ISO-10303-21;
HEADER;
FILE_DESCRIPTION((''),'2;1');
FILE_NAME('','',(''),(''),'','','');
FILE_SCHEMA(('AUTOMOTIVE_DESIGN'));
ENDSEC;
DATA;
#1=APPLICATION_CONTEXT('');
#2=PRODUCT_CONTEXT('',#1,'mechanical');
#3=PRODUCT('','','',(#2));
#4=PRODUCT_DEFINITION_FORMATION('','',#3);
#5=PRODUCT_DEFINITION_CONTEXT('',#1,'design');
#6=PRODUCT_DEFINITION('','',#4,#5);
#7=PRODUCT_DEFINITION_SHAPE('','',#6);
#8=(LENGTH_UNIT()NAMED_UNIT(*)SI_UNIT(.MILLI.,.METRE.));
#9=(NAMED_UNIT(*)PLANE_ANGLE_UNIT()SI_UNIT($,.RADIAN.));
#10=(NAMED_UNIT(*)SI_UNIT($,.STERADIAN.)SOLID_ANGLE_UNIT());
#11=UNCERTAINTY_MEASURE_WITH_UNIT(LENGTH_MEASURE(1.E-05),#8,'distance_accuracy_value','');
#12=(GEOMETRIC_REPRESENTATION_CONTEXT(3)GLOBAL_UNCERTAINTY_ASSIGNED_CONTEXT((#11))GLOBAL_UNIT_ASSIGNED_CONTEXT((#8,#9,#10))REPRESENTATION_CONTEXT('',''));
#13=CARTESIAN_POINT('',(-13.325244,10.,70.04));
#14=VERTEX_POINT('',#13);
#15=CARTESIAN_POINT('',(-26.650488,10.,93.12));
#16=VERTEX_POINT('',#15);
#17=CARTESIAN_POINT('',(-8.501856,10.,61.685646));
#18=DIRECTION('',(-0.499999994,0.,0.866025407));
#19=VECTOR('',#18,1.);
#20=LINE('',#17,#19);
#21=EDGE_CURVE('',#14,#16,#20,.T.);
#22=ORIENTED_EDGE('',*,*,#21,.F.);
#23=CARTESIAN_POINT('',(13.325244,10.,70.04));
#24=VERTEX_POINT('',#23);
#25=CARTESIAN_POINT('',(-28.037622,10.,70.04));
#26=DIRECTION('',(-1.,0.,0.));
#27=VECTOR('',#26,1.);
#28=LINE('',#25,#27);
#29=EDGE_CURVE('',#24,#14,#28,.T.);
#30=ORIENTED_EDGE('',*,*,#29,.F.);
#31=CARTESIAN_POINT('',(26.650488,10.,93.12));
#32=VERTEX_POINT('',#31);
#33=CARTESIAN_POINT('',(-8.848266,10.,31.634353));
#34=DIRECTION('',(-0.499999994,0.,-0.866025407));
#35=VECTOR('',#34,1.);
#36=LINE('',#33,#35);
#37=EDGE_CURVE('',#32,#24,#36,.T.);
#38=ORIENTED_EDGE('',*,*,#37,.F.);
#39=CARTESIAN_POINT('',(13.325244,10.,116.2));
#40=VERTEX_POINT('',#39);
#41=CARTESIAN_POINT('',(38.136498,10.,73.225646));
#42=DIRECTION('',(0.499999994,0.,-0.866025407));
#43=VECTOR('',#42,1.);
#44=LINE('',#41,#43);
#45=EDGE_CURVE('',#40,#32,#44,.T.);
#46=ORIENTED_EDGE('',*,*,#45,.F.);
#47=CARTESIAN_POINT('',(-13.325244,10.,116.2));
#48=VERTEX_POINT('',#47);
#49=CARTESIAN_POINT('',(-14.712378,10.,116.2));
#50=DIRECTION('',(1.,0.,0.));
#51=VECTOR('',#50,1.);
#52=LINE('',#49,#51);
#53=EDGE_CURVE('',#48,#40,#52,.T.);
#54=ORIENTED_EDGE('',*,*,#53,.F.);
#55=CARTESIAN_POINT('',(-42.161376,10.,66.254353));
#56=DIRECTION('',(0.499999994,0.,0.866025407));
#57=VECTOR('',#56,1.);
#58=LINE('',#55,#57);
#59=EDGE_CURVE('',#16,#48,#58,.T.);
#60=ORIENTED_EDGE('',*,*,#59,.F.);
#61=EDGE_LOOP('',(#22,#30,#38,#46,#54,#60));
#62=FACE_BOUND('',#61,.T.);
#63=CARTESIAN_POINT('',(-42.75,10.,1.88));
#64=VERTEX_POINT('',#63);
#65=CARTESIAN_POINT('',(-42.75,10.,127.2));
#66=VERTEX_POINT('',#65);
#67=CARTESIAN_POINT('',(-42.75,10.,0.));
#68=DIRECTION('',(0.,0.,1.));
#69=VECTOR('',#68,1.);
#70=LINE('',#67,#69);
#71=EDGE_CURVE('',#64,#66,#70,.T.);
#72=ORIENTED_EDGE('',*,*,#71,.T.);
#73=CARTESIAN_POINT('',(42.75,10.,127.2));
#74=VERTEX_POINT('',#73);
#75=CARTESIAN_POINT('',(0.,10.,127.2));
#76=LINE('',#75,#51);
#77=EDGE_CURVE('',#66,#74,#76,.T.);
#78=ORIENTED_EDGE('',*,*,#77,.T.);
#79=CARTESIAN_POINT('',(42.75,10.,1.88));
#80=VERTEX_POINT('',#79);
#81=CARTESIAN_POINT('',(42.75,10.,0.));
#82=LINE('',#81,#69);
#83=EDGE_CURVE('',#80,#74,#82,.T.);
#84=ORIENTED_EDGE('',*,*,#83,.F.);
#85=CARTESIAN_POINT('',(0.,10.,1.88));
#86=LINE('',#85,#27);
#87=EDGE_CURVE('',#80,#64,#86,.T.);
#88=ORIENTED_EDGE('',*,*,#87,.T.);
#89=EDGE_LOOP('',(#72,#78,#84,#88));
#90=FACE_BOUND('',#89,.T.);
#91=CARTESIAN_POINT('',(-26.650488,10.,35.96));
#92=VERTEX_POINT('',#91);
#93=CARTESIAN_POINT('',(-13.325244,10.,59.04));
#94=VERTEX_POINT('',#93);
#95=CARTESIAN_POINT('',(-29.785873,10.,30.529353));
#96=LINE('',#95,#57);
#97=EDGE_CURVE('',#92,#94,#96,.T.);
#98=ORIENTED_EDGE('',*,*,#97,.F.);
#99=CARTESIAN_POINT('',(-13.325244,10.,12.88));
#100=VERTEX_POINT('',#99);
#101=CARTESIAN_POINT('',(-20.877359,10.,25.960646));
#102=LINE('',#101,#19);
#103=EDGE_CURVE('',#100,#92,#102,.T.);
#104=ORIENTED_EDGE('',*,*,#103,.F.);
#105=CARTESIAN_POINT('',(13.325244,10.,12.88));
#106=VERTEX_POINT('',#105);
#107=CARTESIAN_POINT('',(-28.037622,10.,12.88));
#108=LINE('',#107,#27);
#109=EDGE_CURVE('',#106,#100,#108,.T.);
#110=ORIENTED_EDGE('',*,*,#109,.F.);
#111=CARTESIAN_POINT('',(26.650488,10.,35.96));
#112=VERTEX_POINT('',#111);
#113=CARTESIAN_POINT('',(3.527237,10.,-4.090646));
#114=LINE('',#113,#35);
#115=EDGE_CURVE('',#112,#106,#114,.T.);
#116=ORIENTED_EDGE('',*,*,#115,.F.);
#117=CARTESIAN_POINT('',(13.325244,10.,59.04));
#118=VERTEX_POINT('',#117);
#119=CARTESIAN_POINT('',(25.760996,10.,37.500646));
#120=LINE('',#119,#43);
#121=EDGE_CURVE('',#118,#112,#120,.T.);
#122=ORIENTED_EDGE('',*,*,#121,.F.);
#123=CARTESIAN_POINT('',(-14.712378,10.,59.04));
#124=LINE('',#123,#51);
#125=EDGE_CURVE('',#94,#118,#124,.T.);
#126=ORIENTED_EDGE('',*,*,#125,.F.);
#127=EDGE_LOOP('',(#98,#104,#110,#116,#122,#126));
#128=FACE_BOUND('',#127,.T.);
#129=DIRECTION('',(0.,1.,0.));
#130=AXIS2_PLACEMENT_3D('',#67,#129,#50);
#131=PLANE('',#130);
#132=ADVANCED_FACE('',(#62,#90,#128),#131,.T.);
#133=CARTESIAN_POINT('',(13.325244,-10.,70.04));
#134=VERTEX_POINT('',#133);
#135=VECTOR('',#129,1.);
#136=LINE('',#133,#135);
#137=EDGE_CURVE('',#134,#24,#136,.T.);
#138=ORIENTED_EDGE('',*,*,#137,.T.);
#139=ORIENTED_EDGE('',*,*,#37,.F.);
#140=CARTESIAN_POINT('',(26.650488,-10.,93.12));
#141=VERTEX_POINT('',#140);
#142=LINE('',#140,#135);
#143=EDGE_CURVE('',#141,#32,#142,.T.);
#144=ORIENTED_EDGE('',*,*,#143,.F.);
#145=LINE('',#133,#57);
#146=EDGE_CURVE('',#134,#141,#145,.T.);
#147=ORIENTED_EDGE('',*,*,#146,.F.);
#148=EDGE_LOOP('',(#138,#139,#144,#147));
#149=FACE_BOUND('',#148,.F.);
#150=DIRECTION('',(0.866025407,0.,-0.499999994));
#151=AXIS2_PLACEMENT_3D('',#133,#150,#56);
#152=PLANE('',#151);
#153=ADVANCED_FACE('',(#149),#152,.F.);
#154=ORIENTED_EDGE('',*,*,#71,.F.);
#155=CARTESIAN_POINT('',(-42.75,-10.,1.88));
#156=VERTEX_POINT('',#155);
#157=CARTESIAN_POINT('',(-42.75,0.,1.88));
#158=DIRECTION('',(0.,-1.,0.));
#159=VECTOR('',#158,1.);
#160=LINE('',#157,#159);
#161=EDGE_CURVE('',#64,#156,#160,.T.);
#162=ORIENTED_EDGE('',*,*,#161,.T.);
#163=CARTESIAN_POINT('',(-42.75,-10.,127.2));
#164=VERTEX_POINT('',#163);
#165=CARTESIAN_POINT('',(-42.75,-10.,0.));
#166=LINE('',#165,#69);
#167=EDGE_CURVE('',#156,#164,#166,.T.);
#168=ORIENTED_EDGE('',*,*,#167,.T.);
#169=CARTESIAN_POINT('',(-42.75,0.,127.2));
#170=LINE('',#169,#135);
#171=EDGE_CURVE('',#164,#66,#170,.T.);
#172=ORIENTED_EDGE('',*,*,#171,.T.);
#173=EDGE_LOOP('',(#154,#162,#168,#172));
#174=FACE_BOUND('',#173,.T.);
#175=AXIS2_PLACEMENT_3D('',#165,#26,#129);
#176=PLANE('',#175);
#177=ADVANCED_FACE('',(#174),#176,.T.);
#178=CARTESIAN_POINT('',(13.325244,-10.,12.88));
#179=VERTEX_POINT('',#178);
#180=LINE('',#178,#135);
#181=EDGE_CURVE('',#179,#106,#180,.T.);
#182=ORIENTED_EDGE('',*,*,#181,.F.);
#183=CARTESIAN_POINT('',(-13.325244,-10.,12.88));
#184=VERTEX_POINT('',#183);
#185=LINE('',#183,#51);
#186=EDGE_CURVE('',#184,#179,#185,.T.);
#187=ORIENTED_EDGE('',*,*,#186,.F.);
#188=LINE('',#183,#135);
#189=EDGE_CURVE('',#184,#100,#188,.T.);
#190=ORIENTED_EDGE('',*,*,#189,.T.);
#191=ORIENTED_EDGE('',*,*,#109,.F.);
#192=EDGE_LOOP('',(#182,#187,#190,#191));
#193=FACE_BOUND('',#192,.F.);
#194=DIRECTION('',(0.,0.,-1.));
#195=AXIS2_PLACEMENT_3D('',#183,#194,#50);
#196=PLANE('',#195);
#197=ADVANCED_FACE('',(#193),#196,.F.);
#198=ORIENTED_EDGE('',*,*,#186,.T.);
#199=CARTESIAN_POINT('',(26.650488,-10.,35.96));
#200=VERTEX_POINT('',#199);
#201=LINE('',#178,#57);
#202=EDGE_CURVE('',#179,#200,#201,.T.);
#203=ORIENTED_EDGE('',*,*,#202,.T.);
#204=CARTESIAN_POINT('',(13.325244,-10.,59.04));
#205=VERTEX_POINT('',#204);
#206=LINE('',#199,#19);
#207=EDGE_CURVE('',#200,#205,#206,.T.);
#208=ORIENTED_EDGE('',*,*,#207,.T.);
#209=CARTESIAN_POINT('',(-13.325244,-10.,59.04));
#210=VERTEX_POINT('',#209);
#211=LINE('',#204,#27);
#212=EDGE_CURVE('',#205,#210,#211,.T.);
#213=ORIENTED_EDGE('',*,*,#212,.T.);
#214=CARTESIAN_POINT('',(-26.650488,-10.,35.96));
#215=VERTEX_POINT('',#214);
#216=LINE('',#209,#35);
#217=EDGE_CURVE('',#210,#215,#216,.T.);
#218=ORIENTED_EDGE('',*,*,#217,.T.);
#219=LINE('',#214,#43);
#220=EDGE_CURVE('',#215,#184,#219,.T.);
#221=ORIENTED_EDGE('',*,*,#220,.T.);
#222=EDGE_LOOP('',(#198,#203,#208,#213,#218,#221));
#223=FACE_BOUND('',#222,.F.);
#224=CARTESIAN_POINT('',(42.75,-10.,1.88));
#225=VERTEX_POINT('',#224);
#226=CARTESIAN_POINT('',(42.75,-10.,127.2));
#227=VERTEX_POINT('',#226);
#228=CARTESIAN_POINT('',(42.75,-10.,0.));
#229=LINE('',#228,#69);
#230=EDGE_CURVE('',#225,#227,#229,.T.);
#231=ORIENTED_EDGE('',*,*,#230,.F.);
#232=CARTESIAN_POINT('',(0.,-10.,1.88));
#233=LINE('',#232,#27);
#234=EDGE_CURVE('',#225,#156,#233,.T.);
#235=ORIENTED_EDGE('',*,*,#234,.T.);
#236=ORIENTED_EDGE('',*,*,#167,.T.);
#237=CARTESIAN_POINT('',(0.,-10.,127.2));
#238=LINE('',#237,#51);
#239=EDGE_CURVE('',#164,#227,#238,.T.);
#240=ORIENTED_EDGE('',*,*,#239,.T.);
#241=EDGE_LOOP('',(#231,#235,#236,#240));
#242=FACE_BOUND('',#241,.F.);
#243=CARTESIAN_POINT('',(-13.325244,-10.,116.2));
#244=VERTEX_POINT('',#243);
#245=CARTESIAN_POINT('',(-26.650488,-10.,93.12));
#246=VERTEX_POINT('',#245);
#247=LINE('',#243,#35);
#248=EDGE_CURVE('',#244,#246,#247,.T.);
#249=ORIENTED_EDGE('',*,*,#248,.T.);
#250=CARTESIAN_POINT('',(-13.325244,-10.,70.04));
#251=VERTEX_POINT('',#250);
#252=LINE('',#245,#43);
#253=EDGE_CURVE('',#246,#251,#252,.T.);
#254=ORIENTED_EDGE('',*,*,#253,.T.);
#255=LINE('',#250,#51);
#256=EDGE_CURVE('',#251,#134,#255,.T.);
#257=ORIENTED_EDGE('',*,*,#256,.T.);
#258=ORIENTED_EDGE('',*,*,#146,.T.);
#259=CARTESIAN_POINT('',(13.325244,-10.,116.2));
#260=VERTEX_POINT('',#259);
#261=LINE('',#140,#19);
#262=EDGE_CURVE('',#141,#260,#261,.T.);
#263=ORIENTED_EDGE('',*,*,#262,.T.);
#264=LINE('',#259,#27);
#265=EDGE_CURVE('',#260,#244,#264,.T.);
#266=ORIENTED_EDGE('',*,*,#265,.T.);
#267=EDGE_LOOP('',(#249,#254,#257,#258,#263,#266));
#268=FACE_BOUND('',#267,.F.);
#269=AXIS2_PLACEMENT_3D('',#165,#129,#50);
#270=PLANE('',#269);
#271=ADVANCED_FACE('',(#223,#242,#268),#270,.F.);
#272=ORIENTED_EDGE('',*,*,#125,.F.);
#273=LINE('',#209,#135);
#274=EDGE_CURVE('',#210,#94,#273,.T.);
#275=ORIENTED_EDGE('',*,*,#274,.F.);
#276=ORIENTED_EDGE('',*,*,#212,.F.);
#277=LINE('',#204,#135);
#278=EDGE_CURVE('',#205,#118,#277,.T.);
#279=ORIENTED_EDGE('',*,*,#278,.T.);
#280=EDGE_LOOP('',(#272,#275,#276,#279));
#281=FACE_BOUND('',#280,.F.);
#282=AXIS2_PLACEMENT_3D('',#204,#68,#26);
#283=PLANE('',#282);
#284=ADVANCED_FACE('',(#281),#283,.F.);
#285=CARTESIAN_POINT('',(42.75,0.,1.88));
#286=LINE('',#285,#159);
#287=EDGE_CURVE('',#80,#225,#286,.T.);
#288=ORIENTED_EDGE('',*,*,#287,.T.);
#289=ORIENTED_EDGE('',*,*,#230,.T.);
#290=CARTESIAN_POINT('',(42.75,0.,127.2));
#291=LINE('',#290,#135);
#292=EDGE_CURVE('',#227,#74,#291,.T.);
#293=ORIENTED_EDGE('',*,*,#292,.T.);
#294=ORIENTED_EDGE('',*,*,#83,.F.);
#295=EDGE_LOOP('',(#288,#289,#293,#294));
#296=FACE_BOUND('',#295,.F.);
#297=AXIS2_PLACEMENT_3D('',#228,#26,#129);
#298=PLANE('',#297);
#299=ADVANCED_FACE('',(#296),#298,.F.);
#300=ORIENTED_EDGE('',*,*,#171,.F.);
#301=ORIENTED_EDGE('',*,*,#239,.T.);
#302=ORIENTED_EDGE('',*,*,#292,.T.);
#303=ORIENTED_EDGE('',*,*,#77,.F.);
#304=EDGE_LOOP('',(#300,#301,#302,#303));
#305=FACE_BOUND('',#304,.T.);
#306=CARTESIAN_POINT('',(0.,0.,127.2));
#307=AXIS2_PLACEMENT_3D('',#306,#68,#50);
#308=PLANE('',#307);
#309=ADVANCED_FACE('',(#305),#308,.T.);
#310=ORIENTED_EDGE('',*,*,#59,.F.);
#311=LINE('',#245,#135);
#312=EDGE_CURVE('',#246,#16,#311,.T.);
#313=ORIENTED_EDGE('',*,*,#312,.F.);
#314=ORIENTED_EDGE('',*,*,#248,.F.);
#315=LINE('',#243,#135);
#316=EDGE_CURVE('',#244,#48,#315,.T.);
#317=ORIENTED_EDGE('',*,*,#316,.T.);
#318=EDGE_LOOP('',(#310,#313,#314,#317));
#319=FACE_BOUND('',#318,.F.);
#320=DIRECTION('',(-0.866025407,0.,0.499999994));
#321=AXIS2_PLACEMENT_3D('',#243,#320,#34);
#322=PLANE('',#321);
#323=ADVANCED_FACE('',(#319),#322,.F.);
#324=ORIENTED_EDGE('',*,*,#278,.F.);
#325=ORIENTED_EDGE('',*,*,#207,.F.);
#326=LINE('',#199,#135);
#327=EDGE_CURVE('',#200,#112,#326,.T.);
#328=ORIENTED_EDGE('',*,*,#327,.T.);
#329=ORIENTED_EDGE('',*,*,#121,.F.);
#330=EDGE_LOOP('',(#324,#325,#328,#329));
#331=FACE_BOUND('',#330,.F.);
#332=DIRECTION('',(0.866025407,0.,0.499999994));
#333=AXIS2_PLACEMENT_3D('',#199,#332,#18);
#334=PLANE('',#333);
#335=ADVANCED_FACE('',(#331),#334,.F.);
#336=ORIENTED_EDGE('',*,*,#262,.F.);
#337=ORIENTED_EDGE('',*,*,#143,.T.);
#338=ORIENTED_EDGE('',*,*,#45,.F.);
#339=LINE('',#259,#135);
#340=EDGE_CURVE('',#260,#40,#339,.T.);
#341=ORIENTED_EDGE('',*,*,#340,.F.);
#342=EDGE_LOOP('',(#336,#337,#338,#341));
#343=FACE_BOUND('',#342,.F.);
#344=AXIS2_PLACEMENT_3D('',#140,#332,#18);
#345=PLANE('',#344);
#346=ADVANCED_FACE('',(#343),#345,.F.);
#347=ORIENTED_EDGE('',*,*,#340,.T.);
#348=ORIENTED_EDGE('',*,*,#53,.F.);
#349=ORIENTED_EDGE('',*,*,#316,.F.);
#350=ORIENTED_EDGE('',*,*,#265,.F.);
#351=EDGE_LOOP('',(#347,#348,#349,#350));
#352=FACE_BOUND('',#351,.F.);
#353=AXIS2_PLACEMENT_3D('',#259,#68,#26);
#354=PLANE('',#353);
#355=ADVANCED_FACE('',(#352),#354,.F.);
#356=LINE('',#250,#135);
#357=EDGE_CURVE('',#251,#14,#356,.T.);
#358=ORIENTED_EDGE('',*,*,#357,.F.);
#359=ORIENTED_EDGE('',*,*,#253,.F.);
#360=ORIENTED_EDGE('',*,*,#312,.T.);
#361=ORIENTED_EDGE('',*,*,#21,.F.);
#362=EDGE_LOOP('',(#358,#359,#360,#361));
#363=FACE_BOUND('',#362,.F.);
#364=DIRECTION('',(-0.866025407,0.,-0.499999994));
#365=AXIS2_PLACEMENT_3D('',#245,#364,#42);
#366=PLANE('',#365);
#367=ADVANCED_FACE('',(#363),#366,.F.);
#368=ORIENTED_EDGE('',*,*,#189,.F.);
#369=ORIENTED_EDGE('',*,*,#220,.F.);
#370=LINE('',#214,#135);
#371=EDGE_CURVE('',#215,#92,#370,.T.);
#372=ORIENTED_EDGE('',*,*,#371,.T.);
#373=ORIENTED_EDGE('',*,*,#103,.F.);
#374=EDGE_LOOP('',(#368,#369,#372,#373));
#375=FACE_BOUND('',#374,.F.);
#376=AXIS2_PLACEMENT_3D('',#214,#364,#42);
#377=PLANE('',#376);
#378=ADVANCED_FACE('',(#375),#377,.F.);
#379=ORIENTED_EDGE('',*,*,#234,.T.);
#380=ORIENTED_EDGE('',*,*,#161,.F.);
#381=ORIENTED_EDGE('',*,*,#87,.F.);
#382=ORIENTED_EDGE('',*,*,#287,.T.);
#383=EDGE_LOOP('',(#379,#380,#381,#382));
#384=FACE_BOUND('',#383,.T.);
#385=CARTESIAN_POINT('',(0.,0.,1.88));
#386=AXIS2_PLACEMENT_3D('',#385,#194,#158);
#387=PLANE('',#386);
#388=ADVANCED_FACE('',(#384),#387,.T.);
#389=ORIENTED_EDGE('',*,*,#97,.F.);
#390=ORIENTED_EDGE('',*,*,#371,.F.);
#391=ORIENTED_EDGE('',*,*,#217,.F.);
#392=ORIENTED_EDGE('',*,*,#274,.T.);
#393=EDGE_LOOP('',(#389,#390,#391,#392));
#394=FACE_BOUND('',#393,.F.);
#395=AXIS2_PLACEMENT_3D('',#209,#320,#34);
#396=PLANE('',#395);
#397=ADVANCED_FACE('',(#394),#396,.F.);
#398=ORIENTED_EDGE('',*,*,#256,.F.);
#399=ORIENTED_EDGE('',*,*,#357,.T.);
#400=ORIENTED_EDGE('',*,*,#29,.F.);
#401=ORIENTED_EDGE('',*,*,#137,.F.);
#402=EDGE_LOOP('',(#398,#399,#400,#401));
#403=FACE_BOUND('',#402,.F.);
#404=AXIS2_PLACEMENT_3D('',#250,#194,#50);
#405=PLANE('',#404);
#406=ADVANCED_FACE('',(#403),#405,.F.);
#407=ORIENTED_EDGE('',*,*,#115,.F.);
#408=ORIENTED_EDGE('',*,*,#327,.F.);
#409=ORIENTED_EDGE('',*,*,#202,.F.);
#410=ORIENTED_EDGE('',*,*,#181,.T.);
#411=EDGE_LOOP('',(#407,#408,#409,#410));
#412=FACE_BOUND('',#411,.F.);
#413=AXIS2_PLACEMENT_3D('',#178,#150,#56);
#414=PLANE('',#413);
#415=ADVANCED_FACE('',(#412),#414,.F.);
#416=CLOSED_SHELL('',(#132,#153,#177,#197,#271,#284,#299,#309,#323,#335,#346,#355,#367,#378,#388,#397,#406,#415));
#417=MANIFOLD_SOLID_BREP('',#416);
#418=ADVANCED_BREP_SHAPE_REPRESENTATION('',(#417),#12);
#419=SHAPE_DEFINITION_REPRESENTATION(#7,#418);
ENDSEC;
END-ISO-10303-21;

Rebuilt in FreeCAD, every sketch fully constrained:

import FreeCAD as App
import Part
import Sketcher
Q = App.Units.Quantity


def add_polygon(sketch, points):
    """Adds a closed chain of lines whose ends are joined by coincident constraints."""
    first, n = sketch.GeometryCount, len(points)
    for a, b in zip(points, points[1:] + points[:1]):
        sketch.addGeometry(Part.LineSegment(App.Vector(*a, 0), App.Vector(*b, 0)), False)
    for i in range(n):
        sketch.addConstraint(Sketcher.Constraint("Coincident", first + i, 2, first + (i + 1) % n, 1))

doc = App.newDocument("Part")
params = doc.addObject("Spreadsheet::Sheet", "Params")
for row, (alias, value) in enumerate([
    ("sketch1_height", "20 mm"),
    ("sketch1_width", "85.5 mm"),
    ("pad1_length", "127.2 mm"),
    ("sketch2_height", "20 mm"),
    ("sketch2_width", "85.5 mm"),
    ("pocket1_length", "1.88 mm"),
], start=1):
    params.set(f"A{row}", alias)
    params.set(f"B{row}", "=" + value)
    params.setAlias(f"B{row}", alias)

body = doc.addObject("PartDesign::Body", "Body")

# Sketch on XY plane
sketch1 = body.newObject("Sketcher::SketchObject", "Sketch")
sketch1.AttachmentSupport = (doc.getObject("XY_Plane"), [""])
sketch1.MapMode = "FlatFace"
add_polygon(sketch1, [(-43, 10), (-43, -10), (43, -10), (43, 10)])  # lines 0-3
sketch1.addConstraint([
    Sketcher.Constraint("Vertical", 0),
    Sketcher.Constraint("Horizontal", 1),
    Sketcher.Constraint("Vertical", 2),
    Sketcher.Constraint("Horizontal", 3),
    Sketcher.Constraint("Symmetric", 0, 2, 2, 2, -1, 1),
    Sketcher.Constraint("DistanceY", 0, 2, 0, 1, Q("20 mm")),
    Sketcher.Constraint("DistanceX", 1, 1, 1, 2, Q("85.5 mm")),
])
sketch1.setExpression("Constraints[9]", "Params.sketch1_height")
sketch1.setExpression("Constraints[10]", "Params.sketch1_width")
pad1 = body.newObject("PartDesign::Pad", "Pad")
pad1.Profile = sketch1
pad1.setExpression("Length", "Params.pad1_length")

# Sketch on XY plane
sketch2 = body.newObject("Sketcher::SketchObject", "Sketch001")
sketch2.AttachmentSupport = (doc.getObject("XY_Plane"), [""])
sketch2.MapMode = "FlatFace"
add_polygon(sketch2, [(-43, 10), (43, 10), (43, -10), (-43, -10)])  # lines 0-3
sketch2.addConstraint([
    Sketcher.Constraint("Horizontal", 0),
    Sketcher.Constraint("Vertical", 1),
    Sketcher.Constraint("Horizontal", 2),
    Sketcher.Constraint("Vertical", 3),
    Sketcher.Constraint("Symmetric", 0, 2, 2, 2, -1, 1),
    Sketcher.Constraint("DistanceY", 1, 2, 1, 1, Q("20 mm")),
    Sketcher.Constraint("DistanceX", 0, 1, 0, 2, Q("85.5 mm")),
])
sketch2.setExpression("Constraints[9]", "Params.sketch2_height")
sketch2.setExpression("Constraints[10]", "Params.sketch2_width")
pocket1 = body.newObject("PartDesign::Pocket", "Pocket")
pocket1.Profile = sketch2
pocket1.setExpression("Length", "Params.pocket1_length")
pocket1.Reversed = True

# Sketch on XZ plane
sketch3 = body.newObject("Sketcher::SketchObject", "Sketch002")
sketch3.AttachmentSupport = (doc.getObject("XZ_Plane"), [""])
sketch3.MapMode = "FlatFace"
sketch3.AttachmentOffset = App.Placement(App.Vector(0, 0, 10), App.Rotation())
add_polygon(sketch3, [(13, 70), (27, 93), (13, 116), (-13, 116), (-27, 93), (-13, 70)])  # lines 0-5
add_polygon(sketch3, [(13, 13), (27, 36), (13, 59), (-13, 59), (-27, 36), (-13, 13)])  # lines 6-11
sketch3.addConstraint([
    Sketcher.Constraint("Horizontal", 2),
    Sketcher.Constraint("Horizontal", 5),
    Sketcher.Constraint("Horizontal", 8),
    Sketcher.Constraint("Horizontal", 11),
    Sketcher.Constraint("Symmetric", 0, 2, 3, 2, -2),
    Sketcher.Constraint("Symmetric", 6, 2, 9, 2, -2),
    Sketcher.Constraint("Parallel", 0, 3),
    Sketcher.Constraint("Parallel", 1, 4),
    Sketcher.Constraint("Parallel", 3, 6),
    Sketcher.Constraint("Parallel", 4, 7),
    Sketcher.Constraint("Parallel", 6, 9),
    Sketcher.Constraint("Parallel", 7, 10),
    Sketcher.Constraint("Vertical", 2, 2, 4, 2),
    Sketcher.Constraint("Vertical", 1, 2, 5, 2),
    Sketcher.Constraint("Vertical", 0, 2, 6, 2),
    Sketcher.Constraint("Vertical", 5, 2, 7, 2),
    Sketcher.Constraint("Vertical", 8, 2, 10, 2),
    Sketcher.Constraint("Angle", 0, Q("60 deg")),
    Sketcher.Constraint("DistanceY", 7, 2, 5, 2, Q("11 mm")),
    Sketcher.Constraint("DistanceY", -1, 1, 1, 2, Q("116.2 mm")),
    Sketcher.Constraint("DistanceY", -1, 1, 0, 2, Q("93.12 mm")),
    Sketcher.Constraint("DistanceX", 2, 2, 2, 1, Q("26.650488 mm")),
])
pocket2 = body.newObject("PartDesign::Pocket", "Pocket001")
pocket2.Profile = sketch3
pocket2.Type = "ThroughAll"

doc.recompute()
